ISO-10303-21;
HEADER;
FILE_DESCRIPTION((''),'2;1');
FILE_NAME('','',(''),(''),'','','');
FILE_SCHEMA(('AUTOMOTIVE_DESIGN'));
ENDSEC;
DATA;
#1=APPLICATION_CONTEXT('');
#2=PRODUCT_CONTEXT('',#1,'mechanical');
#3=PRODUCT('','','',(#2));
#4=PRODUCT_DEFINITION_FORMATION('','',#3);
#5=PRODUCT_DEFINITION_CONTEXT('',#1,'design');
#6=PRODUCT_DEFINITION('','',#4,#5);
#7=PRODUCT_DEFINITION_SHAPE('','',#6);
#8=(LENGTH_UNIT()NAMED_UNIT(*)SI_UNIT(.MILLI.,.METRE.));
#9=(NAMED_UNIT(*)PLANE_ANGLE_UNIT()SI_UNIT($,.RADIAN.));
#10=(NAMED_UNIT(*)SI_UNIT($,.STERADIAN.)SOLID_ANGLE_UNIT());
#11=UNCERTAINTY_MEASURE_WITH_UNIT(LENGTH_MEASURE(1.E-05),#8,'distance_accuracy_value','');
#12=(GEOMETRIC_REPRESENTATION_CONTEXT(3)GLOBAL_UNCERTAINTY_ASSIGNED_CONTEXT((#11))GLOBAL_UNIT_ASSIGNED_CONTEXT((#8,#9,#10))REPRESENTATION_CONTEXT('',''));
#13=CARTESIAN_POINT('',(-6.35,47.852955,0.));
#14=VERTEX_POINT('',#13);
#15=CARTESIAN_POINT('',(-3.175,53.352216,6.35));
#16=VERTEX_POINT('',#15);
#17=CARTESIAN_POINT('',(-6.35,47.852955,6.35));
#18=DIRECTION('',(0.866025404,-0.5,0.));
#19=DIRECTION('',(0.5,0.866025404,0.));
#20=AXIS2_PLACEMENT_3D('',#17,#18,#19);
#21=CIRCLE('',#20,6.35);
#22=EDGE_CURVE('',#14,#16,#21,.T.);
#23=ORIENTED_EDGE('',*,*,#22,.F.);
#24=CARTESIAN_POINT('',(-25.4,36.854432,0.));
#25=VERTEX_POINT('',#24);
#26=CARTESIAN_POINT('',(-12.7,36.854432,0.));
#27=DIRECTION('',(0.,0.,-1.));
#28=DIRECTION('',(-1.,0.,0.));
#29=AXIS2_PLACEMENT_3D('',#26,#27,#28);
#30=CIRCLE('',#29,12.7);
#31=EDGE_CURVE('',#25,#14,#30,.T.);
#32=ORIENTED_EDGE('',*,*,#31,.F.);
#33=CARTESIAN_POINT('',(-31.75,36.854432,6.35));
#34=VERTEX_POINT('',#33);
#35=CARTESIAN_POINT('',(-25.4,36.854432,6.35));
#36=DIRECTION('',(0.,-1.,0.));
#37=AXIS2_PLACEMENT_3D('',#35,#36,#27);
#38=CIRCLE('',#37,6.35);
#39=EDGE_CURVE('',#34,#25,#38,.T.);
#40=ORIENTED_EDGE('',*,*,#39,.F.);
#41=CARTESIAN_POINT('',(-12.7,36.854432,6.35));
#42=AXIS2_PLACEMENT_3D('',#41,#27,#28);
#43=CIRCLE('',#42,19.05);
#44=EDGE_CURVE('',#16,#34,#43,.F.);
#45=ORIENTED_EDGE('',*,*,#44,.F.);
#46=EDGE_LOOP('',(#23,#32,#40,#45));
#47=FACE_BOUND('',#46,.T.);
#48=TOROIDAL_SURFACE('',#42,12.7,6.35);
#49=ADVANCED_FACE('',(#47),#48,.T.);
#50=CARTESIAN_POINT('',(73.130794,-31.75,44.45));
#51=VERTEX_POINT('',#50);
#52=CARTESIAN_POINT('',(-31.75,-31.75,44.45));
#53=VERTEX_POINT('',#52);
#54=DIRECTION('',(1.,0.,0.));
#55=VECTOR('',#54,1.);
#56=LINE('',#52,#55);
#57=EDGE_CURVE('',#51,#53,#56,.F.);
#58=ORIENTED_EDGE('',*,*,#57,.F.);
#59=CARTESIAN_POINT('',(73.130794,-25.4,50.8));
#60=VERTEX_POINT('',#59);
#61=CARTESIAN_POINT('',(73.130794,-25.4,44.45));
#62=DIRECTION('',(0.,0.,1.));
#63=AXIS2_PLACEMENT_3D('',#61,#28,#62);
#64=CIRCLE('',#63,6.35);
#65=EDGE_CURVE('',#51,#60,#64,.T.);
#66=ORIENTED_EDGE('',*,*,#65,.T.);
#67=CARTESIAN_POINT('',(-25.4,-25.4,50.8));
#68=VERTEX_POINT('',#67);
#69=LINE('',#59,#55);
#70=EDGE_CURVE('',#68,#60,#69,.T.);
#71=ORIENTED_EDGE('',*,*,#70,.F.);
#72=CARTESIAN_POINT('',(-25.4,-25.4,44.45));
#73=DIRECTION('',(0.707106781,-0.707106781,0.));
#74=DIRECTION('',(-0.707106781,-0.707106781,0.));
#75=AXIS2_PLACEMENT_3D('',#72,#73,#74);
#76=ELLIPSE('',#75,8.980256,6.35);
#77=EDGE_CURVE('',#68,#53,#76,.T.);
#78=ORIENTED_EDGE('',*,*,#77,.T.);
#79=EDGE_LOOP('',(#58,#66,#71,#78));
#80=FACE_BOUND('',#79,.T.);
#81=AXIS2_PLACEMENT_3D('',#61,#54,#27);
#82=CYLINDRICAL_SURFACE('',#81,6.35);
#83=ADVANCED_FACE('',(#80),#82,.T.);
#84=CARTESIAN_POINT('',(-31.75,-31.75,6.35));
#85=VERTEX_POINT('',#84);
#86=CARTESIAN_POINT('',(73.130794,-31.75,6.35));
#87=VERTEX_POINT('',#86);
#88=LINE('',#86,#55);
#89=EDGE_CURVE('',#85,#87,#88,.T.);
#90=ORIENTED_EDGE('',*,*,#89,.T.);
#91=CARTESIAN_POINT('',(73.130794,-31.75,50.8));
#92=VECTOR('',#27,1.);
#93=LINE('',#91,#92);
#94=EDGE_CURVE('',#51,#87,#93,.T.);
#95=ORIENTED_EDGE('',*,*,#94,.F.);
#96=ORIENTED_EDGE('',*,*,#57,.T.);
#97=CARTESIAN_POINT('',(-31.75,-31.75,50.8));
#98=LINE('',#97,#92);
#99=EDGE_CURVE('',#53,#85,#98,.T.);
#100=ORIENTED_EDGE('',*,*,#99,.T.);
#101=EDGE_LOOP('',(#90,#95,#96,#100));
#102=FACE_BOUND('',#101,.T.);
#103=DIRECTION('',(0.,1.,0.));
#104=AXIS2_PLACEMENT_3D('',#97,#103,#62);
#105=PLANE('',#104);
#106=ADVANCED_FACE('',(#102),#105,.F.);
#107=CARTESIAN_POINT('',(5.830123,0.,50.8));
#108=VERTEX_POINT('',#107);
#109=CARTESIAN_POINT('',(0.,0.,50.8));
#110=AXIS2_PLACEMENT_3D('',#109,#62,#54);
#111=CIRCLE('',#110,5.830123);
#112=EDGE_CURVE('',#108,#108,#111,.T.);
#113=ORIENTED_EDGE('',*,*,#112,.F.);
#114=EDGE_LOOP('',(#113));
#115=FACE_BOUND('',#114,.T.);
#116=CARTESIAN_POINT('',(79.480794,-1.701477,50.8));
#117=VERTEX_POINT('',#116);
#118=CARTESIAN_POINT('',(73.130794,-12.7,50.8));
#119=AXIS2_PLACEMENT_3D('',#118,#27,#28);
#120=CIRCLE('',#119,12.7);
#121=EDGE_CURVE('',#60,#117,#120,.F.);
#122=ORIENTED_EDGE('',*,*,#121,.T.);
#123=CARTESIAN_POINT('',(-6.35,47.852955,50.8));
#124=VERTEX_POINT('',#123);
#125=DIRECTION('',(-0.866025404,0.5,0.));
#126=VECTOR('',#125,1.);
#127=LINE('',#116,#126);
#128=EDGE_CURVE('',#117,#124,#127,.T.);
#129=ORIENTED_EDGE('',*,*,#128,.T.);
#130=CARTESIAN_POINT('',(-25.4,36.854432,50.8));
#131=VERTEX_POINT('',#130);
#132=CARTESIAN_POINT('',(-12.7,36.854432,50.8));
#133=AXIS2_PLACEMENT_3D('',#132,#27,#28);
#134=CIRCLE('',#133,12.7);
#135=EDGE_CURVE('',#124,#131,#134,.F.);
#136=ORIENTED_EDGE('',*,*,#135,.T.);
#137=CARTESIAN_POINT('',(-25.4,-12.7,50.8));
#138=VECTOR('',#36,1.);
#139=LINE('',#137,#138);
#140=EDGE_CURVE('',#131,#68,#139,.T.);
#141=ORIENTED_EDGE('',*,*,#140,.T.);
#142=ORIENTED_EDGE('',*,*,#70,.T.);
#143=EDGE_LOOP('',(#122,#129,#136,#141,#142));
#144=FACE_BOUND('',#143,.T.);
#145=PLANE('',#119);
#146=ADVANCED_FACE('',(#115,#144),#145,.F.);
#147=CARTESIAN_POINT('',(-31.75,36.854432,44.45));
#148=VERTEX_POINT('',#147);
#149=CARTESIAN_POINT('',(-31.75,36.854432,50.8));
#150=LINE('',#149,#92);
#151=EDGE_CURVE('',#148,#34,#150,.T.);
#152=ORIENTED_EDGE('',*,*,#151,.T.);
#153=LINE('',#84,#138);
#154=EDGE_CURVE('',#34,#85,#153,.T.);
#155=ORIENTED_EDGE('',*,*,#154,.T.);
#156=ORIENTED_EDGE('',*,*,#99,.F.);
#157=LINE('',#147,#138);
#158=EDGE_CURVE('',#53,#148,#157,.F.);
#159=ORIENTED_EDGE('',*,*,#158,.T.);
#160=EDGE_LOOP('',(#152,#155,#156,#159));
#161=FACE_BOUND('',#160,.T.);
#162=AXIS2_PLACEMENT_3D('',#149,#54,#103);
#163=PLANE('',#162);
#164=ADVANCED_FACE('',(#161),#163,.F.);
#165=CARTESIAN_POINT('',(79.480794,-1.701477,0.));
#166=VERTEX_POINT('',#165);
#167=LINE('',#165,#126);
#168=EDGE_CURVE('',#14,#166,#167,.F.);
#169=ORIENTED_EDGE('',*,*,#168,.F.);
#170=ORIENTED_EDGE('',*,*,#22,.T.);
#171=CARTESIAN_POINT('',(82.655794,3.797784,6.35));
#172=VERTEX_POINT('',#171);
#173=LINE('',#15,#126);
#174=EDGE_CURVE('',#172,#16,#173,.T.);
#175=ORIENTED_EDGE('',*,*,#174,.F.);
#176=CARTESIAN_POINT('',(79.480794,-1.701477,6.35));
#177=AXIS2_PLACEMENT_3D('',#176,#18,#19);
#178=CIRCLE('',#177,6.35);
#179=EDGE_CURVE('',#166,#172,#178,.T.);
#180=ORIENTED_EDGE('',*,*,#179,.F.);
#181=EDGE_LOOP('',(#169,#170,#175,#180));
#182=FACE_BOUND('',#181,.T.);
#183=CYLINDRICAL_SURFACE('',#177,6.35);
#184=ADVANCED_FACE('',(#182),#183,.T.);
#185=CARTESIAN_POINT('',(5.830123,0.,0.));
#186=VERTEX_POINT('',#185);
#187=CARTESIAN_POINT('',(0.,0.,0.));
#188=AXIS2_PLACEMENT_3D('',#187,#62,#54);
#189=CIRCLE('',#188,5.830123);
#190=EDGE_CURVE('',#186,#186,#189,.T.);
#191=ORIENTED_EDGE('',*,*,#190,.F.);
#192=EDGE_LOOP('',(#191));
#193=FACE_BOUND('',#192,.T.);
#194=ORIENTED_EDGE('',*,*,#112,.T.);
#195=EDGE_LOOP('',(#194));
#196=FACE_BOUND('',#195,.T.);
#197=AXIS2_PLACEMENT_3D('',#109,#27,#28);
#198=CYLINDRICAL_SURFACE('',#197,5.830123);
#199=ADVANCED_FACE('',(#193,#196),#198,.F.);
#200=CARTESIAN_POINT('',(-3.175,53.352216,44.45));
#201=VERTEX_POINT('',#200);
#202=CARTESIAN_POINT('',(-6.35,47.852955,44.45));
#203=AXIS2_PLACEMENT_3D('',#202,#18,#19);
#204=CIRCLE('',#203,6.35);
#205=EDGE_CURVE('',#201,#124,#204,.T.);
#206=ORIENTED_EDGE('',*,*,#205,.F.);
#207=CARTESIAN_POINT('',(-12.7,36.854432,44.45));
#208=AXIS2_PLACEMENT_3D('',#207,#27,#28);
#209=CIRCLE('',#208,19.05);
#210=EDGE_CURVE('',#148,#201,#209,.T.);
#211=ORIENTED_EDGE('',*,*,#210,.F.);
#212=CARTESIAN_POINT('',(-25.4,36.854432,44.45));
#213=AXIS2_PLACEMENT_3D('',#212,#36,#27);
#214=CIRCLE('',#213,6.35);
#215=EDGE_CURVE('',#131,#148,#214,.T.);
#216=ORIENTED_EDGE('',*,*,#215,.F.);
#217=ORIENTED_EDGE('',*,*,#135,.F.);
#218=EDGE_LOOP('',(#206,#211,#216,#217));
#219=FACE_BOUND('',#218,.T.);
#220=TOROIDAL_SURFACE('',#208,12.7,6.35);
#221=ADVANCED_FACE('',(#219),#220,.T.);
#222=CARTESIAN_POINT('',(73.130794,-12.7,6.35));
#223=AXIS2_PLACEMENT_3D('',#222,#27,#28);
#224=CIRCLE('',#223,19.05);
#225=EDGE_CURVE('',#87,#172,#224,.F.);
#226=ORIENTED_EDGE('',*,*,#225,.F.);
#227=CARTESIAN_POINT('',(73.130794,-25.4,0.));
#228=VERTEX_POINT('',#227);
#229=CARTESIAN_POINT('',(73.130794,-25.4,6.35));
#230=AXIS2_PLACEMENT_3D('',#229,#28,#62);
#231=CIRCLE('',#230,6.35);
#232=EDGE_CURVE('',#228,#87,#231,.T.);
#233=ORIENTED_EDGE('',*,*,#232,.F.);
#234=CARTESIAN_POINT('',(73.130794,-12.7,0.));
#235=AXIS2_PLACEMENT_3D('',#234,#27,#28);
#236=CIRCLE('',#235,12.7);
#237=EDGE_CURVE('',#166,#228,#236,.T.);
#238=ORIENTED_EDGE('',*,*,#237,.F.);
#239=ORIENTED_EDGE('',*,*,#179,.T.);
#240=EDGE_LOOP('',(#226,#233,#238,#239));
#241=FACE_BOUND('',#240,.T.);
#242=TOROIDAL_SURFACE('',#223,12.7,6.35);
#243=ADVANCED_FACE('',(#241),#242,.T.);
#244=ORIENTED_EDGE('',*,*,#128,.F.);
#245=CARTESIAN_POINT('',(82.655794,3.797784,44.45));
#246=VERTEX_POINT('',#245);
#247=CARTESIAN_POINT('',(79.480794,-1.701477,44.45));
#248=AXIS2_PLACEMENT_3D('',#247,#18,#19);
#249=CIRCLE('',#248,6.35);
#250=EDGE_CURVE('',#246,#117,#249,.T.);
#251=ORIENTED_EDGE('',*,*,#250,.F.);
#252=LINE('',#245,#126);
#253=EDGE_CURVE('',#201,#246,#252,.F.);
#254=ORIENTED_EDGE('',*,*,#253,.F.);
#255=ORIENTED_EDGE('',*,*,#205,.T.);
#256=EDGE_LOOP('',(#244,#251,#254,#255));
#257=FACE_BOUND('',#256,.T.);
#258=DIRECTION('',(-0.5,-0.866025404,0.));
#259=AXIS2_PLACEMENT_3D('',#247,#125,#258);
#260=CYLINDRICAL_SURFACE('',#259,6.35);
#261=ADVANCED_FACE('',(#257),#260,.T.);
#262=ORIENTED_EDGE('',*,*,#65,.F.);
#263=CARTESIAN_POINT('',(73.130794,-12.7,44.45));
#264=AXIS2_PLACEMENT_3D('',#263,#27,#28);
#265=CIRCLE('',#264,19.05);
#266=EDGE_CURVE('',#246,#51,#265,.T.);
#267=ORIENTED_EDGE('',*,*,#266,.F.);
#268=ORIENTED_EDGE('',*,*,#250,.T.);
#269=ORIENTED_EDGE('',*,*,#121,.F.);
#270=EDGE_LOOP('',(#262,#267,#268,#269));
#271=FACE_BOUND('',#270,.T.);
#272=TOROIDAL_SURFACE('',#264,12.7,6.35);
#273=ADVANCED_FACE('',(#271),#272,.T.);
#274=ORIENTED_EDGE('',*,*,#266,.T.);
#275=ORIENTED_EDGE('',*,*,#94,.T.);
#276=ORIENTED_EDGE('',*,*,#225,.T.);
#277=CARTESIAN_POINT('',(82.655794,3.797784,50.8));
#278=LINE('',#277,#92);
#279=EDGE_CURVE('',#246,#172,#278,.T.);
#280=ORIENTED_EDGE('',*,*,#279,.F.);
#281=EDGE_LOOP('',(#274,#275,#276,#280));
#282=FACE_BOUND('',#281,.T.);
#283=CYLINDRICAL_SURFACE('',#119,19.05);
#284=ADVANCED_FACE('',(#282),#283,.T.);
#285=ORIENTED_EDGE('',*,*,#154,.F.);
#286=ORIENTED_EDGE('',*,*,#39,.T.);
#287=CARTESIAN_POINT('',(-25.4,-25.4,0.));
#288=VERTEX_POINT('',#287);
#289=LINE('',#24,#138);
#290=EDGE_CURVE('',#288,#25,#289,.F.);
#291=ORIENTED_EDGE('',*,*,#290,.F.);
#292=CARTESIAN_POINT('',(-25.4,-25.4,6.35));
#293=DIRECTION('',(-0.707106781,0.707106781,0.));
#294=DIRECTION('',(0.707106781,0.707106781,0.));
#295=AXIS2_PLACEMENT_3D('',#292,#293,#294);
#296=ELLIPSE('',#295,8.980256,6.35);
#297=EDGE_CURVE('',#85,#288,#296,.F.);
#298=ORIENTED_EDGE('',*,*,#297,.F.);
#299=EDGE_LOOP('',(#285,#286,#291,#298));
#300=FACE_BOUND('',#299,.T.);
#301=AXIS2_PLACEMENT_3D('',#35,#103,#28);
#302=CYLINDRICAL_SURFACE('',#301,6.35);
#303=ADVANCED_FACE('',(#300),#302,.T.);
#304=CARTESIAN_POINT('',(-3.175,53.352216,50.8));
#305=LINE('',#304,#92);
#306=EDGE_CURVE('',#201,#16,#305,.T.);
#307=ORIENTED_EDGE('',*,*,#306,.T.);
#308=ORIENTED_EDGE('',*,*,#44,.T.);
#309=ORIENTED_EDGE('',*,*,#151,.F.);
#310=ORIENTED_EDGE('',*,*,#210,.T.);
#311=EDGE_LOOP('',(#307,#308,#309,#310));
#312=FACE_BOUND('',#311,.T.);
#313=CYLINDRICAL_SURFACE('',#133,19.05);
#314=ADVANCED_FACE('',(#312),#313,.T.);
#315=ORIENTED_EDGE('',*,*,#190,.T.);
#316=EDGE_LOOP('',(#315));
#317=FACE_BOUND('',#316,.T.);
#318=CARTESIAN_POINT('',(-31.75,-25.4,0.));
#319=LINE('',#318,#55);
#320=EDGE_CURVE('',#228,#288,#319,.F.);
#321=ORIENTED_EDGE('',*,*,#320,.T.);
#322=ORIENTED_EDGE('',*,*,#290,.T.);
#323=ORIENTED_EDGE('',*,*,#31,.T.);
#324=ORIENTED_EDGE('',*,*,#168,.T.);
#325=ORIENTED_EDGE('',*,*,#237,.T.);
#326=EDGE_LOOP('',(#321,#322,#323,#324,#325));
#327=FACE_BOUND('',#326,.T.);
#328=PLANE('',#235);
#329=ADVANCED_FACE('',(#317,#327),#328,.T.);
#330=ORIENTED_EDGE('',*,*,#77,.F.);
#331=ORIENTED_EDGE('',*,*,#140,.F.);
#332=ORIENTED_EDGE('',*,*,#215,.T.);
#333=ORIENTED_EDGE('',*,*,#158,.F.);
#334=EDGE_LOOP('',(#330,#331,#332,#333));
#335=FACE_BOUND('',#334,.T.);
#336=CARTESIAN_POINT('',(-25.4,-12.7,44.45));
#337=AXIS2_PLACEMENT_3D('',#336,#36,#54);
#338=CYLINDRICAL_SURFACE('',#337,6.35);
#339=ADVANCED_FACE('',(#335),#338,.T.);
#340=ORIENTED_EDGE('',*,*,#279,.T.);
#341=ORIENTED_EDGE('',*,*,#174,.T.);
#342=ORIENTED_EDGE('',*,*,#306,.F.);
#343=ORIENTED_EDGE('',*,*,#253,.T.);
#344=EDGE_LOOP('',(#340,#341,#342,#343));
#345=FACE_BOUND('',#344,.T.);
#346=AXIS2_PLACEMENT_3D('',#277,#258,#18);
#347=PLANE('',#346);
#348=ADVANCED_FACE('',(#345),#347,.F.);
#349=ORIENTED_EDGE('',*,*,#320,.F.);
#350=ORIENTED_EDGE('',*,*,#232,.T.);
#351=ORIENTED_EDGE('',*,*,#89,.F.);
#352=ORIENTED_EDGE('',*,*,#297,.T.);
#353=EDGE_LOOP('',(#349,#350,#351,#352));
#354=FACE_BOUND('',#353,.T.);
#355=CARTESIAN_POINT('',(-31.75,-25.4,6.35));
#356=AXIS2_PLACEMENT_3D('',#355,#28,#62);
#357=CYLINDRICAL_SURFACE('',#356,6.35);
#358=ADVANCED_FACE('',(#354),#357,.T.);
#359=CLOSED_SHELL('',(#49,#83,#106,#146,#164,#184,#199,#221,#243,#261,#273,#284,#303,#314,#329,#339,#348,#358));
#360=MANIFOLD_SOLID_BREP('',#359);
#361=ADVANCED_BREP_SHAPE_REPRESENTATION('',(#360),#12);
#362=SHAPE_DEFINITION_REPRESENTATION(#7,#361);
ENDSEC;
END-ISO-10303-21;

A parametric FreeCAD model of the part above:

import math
import FreeCAD as App
import Part
import Sketcher
Q = App.Units.Quantity


def edges_at(feature, points):
    """Names of the edges that pass closest to the given points."""
    edges = feature.Shape.Edges
    near = lambda p: min(range(len(edges)), key=lambda i: edges[i].distToShape(Part.Vertex(*p))[0])
    return sorted({f"Edge{near(p) + 1}" for p in points})

doc = App.newDocument("Part")
body = doc.addObject("PartDesign::Body", "Body")

# Sketch on XY plane
sketch1 = doc.addObject("Sketcher::SketchObject", "Sketch")
body.addObject(sketch1)
sketch1.AttachmentSupport = (doc.XY_Plane, [""])
sketch1.MapMode = "FlatFace"
sketch1.addGeometry([
    Part.LineSegment(App.Vector(-32, -32, 0), App.Vector(73, -32, 0)),  # 0
    Part.ArcOfCircle(Part.Circle(App.Vector(73, -13, 0), App.Vector(0, 0, 1), 19), math.radians(-90), math.radians(60)),  # 1
    Part.LineSegment(App.Vector(83, 4, 0), App.Vector(-3, 53, 0)),  # 2
    Part.ArcOfCircle(Part.Circle(App.Vector(-13, 37, 0), App.Vector(0, 0, 1), 19), math.radians(60), math.radians(180)),  # 3
    Part.LineSegment(App.Vector(-32, 37, 0), App.Vector(-32, -32, 0)),  # 4
    Part.Circle(App.Vector(0, 0, 0), App.Vector(0, 0, 1), 6),  # 5
], False)
sketch1.addConstraint([
    Sketcher.Constraint("Tangent", 0, 2, 1, 1),
    Sketcher.Constraint("Tangent", 1, 2, 2, 1),
    Sketcher.Constraint("Tangent", 2, 2, 3, 1),
    Sketcher.Constraint("Tangent", 3, 2, 4, 1),
    Sketcher.Constraint("Coincident", 4, 2, 0, 1),
    Sketcher.Constraint("Horizontal", 0),
    Sketcher.Constraint("Vertical", 4),
    Sketcher.Constraint("Coincident", 5, 3, -1, 1),
    Sketcher.Constraint("Equal", 1, 3),
    Sketcher.Constraint("Radius", 1, Q("0.75 in")),
    Sketcher.Constraint("Angle", 2, Q("150 deg")),
    Sketcher.Constraint("DistanceY", 1, 3, -1, 1, Q("0.5 in")),
    Sketcher.Constraint("DistanceX", 3, 3, -1, 1, Q("0.5 in")),
    Sketcher.Constraint("Diameter", 5, Q("11.660245 mm")),
    Sketcher.Constraint("DistanceX", 0, 1, 0, 2, Q("104.880794 mm")),
])
pad1 = doc.addObject("PartDesign::Pad", "Pad")
body.addObject(pad1)
pad1.Profile = sketch1
pad1.Length = Q("2 in")
doc.recompute()

fillet = doc.addObject("PartDesign::Fillet", "Fillet")
body.addObject(fillet)
fillet.Base = (pad1, edges_at(pad1, [
    (91.532, -17.631, 50.8),
    (39.74, 28.575, 50.8),
    (-22.225, 53.352, 50.8),
    (-31.75, 2.552, 50.8),
    (-22.225, 53.352, 0),
    (39.74, 28.575, 0),
    (91.532, -17.631, 0),
    (20.69, -31.75, 0),
    (-31.75, 2.552, 0),
    (20.69, -31.75, 50.8),
]))
fillet.Radius = Q("0.25 in")

doc.recompute()
